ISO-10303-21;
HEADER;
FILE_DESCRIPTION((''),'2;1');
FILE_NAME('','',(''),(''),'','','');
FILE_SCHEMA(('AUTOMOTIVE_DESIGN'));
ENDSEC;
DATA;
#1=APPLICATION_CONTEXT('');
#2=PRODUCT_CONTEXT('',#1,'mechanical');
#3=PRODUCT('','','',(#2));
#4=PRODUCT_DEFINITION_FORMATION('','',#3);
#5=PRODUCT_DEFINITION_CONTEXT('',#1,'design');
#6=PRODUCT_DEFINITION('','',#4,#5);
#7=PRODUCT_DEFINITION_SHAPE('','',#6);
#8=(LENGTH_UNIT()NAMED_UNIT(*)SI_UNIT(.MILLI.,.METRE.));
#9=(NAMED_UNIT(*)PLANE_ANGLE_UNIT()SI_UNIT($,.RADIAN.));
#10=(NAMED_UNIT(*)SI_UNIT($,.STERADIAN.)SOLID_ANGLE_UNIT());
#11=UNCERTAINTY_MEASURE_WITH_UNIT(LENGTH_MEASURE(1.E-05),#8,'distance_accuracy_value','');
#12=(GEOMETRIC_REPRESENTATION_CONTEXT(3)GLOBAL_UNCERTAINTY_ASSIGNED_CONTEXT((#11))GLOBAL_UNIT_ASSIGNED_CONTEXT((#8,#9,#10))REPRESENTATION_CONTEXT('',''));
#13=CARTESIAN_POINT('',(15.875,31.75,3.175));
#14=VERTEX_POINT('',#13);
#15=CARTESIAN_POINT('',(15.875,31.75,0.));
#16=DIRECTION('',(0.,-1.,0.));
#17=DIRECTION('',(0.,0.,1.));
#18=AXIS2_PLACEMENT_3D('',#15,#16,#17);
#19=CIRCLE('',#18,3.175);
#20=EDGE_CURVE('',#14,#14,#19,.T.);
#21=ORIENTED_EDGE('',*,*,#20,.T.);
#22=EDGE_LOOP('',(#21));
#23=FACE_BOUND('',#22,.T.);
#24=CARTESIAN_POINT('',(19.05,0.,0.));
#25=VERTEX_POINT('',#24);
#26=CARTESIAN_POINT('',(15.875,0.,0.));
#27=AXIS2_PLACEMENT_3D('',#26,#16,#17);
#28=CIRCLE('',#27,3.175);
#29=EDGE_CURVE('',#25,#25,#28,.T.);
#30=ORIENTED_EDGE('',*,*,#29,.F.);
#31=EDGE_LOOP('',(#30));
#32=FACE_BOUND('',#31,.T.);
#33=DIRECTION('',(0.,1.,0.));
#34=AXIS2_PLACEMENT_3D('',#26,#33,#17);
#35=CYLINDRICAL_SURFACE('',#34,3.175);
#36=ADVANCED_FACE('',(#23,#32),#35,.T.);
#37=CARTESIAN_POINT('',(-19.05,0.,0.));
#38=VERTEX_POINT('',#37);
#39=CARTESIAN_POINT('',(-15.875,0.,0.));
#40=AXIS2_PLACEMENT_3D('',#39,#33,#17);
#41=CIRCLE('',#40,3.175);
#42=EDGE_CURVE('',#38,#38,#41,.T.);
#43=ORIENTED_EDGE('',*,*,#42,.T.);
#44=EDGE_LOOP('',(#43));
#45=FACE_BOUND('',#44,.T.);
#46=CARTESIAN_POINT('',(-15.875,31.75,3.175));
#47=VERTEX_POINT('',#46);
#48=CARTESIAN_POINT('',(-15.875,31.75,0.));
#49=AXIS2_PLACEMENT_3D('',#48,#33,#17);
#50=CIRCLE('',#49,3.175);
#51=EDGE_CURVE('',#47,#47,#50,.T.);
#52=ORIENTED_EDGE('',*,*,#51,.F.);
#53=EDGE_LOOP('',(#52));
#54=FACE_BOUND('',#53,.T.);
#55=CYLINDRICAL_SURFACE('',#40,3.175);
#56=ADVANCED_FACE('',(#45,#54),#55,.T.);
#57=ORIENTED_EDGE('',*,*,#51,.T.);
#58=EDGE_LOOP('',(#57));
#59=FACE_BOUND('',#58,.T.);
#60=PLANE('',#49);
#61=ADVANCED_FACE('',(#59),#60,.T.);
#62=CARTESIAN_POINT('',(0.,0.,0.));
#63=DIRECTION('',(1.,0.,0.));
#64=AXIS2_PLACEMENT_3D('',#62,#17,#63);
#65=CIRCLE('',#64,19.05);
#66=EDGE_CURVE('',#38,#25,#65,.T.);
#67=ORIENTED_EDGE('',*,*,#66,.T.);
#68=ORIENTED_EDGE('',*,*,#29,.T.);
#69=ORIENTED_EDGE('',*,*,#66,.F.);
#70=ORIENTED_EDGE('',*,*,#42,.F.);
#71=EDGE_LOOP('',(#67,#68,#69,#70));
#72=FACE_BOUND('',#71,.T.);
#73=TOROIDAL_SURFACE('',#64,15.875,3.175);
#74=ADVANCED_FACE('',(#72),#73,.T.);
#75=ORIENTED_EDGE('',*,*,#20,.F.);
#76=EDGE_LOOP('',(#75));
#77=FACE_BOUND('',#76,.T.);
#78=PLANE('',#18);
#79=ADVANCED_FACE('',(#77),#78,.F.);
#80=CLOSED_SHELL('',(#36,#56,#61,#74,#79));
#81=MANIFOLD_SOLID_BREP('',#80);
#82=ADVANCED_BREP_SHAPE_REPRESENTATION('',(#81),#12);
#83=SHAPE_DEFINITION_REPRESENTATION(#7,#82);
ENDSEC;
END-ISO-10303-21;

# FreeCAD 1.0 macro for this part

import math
import FreeCAD as App
import Part
import Sketcher
Q = App.Units.Quantity

doc = App.newDocument("Part")
body = doc.addObject("PartDesign::Body", "Body")

sketch1 = doc.addObject("Sketcher::SketchObject", "Sketch")
body.addObject(sketch1)
sketch1.AttachmentSupport = (doc.XZ_Plane, [""])
sketch1.MapMode = "FlatFace"
sketch1.AttachmentOffset = App.Placement(App.Vector(0, 0, -1.25 * 25.4), App.Rotation())
sketch1.addGeometry(Part.Circle(App.Vector(-15.9, 0, 0), App.Vector(0, 0, 1), 3.2), False)
sketch1.addConstraint([
    Sketcher.Constraint("PointOnObject", 0, 3, -1),
    Sketcher.Constraint("Diameter", 0, Q("0.25 in")),
    Sketcher.Constraint("DistanceX", 0, 3, -1, 1, Q("0.625 in")),
])

sketch2 = doc.addObject("Sketcher::SketchObject", "Sketch001")
body.addObject(sketch2)
sketch2.AttachmentSupport = (doc.XY_Plane, [""])
sketch2.MapMode = "FlatFace"
sketch2.addGeometry([
    Part.LineSegment(App.Vector(-13, 32, 0), App.Vector(-13, 0, 0)),
    Part.ArcOfCircle(Part.Circle(App.Vector(0, 0, 0), App.Vector(0, 0, 1), 13), math.radians(180), math.radians(360)),
    Part.LineSegment(App.Vector(13, 0, 0), App.Vector(13, 32, 0)),
], False)
sketch2.addConstraint([
    Sketcher.Constraint("Tangent", 0, 2, 1, 1),
    Sketcher.Constraint("Tangent", 1, 2, 2, 1),
    Sketcher.Constraint("Vertical", 0),
    Sketcher.Constraint("Vertical", 2),
    Sketcher.Constraint("Coincident", 1, 3, -1, 1),
    Sketcher.Constraint("Horizontal", 0, 1, 2, 2),
    Sketcher.Constraint("Radius", 1, Q("0.5 in")),
    Sketcher.Constraint("DistanceY", 0, 2, 0, 1, Q("1.25 in")),
])
doc.recompute()

additivepipe = doc.addObject("PartDesign::AdditivePipe", "AdditivePipe")
body.addObject(additivepipe)
additivepipe.Profile = sketch1
additivepipe.Spine = (sketch2, ["Edge1", "Edge2", "Edge3"])

doc.recompute()
